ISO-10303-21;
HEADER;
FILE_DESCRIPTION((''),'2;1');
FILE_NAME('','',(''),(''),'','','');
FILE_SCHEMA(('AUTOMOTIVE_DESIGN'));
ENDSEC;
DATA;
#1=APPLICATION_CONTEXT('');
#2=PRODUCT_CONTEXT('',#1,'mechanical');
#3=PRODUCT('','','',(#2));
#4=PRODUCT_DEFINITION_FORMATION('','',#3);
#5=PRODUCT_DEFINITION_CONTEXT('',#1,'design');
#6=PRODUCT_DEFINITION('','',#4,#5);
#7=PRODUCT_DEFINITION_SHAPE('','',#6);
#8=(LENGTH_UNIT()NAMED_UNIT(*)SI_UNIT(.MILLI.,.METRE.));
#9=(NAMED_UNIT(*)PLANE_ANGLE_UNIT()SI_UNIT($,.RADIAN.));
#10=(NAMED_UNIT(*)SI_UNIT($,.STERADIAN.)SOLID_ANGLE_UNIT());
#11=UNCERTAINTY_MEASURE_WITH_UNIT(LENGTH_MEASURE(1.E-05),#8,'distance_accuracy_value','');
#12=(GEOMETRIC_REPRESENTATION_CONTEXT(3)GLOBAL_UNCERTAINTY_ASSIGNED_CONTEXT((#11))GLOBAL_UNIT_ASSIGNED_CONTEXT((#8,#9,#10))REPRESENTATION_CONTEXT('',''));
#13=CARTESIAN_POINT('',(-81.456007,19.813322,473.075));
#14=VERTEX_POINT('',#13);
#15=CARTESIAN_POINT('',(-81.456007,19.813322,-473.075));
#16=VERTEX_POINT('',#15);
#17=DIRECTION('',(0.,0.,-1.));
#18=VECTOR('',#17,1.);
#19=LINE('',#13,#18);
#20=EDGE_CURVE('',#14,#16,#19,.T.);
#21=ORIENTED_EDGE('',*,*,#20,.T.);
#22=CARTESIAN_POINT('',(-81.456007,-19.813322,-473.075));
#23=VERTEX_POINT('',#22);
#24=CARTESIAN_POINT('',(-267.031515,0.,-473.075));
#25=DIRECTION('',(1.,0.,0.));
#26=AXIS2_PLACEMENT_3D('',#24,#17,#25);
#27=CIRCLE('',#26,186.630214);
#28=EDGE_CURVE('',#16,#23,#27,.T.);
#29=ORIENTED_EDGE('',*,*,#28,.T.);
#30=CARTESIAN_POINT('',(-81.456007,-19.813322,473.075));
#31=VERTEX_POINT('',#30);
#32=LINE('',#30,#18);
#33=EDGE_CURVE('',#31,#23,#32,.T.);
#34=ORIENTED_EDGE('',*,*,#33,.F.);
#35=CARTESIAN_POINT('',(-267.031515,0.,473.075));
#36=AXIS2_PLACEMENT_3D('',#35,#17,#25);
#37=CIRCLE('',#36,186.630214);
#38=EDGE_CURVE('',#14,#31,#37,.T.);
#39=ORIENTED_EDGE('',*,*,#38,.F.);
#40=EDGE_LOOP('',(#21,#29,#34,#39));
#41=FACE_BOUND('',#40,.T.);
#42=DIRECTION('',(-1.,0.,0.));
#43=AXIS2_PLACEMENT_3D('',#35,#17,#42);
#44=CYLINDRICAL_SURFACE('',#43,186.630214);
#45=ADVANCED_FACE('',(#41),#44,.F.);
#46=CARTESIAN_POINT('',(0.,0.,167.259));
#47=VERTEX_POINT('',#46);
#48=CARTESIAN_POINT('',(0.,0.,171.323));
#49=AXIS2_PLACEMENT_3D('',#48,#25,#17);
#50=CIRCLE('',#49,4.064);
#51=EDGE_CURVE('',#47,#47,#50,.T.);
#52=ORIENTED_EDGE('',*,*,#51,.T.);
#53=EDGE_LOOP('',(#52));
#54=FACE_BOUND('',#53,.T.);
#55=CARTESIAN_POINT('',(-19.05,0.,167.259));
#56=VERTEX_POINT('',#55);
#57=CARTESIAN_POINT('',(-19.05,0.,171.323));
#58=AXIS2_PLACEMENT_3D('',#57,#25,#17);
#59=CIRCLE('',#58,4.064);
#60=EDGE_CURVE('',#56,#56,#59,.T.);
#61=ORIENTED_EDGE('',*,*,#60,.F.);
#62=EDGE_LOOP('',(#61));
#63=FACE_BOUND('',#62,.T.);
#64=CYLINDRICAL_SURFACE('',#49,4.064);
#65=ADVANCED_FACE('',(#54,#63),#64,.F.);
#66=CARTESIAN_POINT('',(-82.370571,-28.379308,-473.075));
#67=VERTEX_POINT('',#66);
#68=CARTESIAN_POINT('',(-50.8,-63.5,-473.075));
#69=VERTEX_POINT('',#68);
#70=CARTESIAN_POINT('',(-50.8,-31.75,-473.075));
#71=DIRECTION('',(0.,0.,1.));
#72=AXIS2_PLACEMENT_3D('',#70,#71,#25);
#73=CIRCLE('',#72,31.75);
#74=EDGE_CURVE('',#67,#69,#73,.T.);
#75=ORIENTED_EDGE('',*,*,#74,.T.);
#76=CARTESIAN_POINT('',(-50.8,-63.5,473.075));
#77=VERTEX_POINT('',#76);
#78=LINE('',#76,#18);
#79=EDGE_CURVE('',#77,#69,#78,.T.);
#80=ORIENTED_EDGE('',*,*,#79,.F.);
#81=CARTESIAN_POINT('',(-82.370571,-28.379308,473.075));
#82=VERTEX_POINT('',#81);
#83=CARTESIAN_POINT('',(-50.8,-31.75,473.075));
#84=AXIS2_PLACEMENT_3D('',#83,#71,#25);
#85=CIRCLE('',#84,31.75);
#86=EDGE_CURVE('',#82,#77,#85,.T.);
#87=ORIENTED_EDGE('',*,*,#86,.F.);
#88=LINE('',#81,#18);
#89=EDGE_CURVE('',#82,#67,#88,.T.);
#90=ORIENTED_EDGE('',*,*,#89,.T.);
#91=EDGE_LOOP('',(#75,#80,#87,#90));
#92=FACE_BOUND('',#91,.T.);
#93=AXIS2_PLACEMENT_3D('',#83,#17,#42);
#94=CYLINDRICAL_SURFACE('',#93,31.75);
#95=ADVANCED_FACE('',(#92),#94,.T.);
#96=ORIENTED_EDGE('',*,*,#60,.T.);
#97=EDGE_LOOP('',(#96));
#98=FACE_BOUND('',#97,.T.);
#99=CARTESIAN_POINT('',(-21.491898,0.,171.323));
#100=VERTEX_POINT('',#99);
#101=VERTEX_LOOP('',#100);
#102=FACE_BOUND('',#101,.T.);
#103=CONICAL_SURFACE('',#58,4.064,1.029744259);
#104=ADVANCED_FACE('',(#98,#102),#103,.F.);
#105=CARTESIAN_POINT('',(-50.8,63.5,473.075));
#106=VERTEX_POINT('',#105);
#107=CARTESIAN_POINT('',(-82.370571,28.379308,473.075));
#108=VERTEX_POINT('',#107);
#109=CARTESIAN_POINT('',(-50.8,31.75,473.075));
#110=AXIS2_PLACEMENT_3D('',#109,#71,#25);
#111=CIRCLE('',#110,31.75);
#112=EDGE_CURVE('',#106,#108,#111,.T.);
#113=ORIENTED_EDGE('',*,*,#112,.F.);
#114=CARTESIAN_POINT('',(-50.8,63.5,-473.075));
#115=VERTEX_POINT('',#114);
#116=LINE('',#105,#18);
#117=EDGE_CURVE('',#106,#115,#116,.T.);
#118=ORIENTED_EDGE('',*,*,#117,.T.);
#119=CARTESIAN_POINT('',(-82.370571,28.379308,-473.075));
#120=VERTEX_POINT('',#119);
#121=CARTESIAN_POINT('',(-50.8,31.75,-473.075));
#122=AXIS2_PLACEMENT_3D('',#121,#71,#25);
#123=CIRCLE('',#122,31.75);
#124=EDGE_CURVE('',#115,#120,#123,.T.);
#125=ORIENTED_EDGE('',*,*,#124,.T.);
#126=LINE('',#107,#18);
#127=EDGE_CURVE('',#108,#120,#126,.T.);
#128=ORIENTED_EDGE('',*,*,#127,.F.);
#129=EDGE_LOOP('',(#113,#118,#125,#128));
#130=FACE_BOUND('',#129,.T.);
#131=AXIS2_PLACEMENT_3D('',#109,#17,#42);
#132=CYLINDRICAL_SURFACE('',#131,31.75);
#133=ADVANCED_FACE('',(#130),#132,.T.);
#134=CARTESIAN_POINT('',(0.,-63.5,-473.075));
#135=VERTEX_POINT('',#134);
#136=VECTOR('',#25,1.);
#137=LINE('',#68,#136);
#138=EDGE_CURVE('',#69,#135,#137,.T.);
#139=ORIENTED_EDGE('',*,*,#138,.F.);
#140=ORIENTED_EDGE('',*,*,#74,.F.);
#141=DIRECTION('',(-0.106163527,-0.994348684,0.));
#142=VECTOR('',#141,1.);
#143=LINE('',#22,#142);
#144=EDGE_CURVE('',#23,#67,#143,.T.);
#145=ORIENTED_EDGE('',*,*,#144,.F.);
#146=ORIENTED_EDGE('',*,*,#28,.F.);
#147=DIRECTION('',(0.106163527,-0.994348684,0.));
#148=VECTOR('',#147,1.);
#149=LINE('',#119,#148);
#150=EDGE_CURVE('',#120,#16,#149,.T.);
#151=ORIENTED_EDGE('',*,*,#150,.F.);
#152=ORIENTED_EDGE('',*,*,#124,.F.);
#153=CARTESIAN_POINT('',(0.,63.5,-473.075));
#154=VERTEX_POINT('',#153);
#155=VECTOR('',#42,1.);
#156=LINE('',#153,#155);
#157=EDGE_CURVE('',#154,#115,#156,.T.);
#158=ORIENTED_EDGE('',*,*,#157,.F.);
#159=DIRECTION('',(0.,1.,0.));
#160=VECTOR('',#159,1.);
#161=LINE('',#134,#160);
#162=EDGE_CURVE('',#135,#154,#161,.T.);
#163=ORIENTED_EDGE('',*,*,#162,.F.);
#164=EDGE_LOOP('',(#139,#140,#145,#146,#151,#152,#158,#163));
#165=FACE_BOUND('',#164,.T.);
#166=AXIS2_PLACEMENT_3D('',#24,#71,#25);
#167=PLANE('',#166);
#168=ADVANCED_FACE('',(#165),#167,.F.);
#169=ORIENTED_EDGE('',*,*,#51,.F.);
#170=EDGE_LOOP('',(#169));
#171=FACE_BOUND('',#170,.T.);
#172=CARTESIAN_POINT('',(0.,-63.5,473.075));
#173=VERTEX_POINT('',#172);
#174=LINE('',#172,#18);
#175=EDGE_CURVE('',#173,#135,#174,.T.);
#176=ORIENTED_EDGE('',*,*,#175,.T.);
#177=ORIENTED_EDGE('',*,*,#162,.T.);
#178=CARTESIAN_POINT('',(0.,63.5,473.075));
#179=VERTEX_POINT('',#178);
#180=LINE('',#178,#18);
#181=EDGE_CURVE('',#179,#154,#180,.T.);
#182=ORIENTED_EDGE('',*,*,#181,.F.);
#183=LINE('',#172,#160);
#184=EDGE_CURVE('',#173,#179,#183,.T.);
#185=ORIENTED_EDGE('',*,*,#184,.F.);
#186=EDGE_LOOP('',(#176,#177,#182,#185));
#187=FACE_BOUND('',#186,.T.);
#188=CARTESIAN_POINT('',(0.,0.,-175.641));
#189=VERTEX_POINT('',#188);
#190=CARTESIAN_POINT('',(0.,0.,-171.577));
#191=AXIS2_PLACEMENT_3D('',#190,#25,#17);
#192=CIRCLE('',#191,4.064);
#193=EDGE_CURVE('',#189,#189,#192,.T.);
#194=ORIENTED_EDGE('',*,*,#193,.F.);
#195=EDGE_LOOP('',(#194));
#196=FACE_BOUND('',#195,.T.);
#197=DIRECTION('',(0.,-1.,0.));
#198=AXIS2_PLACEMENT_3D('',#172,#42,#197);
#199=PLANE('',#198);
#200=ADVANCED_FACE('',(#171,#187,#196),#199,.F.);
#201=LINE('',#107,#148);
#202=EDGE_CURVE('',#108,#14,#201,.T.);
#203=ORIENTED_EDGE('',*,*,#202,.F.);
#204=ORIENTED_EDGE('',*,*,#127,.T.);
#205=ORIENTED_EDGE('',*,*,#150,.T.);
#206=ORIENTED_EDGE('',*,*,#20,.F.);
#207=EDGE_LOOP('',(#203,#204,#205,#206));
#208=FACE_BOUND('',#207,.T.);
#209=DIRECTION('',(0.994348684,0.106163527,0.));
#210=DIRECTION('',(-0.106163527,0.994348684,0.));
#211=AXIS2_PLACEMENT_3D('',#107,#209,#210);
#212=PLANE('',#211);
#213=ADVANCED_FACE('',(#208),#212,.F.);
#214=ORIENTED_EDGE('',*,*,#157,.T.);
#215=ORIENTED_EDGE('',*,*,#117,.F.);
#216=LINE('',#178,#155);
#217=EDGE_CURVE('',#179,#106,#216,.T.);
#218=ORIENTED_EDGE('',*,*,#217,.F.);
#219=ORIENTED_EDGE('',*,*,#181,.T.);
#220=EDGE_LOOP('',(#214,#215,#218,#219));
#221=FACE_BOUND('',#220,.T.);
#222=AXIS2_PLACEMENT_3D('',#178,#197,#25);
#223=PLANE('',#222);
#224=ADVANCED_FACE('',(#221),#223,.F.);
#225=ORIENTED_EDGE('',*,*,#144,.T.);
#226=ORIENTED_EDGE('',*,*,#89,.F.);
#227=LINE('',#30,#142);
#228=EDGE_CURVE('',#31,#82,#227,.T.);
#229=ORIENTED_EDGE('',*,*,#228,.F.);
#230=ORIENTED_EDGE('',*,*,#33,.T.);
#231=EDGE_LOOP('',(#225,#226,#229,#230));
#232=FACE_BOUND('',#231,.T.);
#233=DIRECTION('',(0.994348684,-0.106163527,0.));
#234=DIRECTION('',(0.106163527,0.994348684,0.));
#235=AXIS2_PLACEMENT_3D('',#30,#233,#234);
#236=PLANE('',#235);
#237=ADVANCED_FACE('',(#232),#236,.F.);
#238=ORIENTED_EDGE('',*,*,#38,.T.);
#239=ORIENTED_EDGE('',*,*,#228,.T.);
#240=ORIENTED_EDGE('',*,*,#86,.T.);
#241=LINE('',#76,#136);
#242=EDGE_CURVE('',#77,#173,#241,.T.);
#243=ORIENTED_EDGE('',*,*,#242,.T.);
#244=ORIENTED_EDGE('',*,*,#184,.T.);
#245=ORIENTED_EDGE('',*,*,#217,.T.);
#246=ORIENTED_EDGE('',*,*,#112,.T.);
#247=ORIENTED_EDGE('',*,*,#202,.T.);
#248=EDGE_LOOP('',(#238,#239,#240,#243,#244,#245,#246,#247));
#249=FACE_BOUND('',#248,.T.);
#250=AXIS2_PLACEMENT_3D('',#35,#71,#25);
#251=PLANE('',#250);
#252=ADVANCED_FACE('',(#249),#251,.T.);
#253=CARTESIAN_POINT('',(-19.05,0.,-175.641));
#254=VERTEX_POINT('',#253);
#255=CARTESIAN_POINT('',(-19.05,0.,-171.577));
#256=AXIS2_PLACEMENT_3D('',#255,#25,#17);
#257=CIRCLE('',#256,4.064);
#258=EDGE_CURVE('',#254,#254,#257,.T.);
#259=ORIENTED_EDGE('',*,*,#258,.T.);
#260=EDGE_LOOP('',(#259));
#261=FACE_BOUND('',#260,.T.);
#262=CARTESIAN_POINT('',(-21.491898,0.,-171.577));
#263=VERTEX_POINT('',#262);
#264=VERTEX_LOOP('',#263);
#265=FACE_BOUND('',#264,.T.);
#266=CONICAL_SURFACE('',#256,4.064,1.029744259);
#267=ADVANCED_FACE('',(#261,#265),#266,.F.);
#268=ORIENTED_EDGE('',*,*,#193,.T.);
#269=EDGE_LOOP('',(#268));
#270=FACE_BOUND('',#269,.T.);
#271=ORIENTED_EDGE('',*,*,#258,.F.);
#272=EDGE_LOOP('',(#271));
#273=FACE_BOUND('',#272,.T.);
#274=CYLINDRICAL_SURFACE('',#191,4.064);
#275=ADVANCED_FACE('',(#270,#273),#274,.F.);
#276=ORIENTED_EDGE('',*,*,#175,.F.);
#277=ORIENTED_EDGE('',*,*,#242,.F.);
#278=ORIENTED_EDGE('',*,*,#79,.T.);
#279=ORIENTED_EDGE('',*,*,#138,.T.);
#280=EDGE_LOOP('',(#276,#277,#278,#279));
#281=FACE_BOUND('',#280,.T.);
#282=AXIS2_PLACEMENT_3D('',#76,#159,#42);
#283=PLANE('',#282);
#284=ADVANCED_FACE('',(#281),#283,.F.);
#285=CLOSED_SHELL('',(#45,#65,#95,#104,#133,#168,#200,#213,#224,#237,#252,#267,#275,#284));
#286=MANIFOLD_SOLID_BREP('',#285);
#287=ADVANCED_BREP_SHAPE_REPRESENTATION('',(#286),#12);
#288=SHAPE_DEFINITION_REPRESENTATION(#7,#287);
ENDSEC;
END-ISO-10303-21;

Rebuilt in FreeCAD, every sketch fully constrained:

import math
import FreeCAD as App
import Part
import Sketcher
Q = App.Units.Quantity

doc = App.newDocument("Part")
body = doc.addObject("PartDesign::Body", "Body")

# Sketch on XY plane
sketch1 = body.newObject("Sketcher::SketchObject", "Sketch")
sketch1.AttachmentSupport = (doc.getObject("XY_Plane"), [""])
sketch1.MapMode = "FlatFace"
sketch1.addGeometry([
    Part.LineSegment(App.Vector(-81, -20, 0), App.Vector(-82, -28, 0)),  # 0
    Part.ArcOfCircle(Part.Circle(App.Vector(-51, -32, 0), App.Vector(0, 0, 1), 32), math.radians(174), math.radians(270)),  # 1
    Part.LineSegment(App.Vector(-51, -64, 0), App.Vector(0, -64, 0)),  # 2
    Part.LineSegment(App.Vector(0, -64, 0), App.Vector(0, 64, 0)),  # 3
    Part.LineSegment(App.Vector(0, 64, 0), App.Vector(-51, 64, 0)),  # 4
    Part.ArcOfCircle(Part.Circle(App.Vector(-51, 32, 0), App.Vector(0, 0, 1), 32), math.radians(90), math.radians(186)),  # 5
    Part.LineSegment(App.Vector(-82, 28, 0), App.Vector(-81, 20, 0)),  # 6
    Part.ArcOfCircle(Part.Circle(App.Vector(-267, 0, 0), App.Vector(0, 0, 1), 187), math.radians(-6.09), math.radians(6.09)),  # 7
], False)
sketch1.addConstraint([
    Sketcher.Constraint("Tangent", 0, 2, 1, 1),
    Sketcher.Constraint("Tangent", 1, 2, 2, 1),
    Sketcher.Constraint("Coincident", 2, 2, 3, 1),
    Sketcher.Constraint("Coincident", 3, 2, 4, 1),
    Sketcher.Constraint("Tangent", 4, 2, 5, 1),
    Sketcher.Constraint("Tangent", 5, 2, 6, 1),
    Sketcher.Constraint("Tangent", 6, 2, 7, 2),
    Sketcher.Constraint("Tangent", 7, 1, 0, 1),
    Sketcher.Constraint("Horizontal", 2),
    Sketcher.Constraint("Vertical", 3),
    Sketcher.Constraint("Horizontal", 4),
    Sketcher.Constraint("Equal", 1, 5),
    Sketcher.Constraint("Symmetric", 2, 2, 3, 2, -1, 1),
    Sketcher.Constraint("Symmetric", 0, 2, 5, 2, -1),
    Sketcher.Constraint("DistanceX", 2, 1, 2, 2, Q("2 in")),
    Sketcher.Constraint("DistanceY", 3, 1, 3, 2, Q("5 in")),
    Sketcher.Constraint("Radius", 1, Q("1.25 in")),
    Sketcher.Constraint("Radius", 7, 186.630214),
    Sketcher.Constraint("Distance", 0, 8.61467),
])
pad1 = body.newObject("PartDesign::Pad", "Pad")
pad1.Profile = sketch1
pad1.Length = Q("37.25 in")
pad1.Midplane = True

# Sketch on YZ plane
sketch2 = body.newObject("Sketcher::SketchObject", "Sketch001")
sketch2.AttachmentSupport = (doc.getObject("YZ_Plane"), [""])
sketch2.MapMode = "FlatFace"
sketch2.addGeometry([
    Part.Circle(App.Vector(0, 171.3, 0), App.Vector(0, 0, 1), 4.1),
    Part.Circle(App.Vector(0, -171.6, 0), App.Vector(0, 0, 1), 4.1),
], False)
sketch2.addConstraint([
    Sketcher.Constraint("Equal", 0, 1),
    Sketcher.Constraint("PointOnObject", 0, 3, -2),
    Sketcher.Constraint("PointOnObject", 1, 3, -2),
    Sketcher.Constraint("Diameter", 0, Q("0.32 in")),
    Sketcher.Constraint("DistanceY", 1, 3, 0, 3, Q("13.5 in")),
    Sketcher.Constraint("DistanceY", -1, 1, 0, 3, Q("6.745 in")),
])
doc.recompute()
hole = body.newObject("PartDesign::Hole", "Hole")
hole.Profile = sketch2
hole.ThreadType = "None"
hole.Diameter = Q("0.32 in")
hole.DepthType = "Dimension"
hole.Depth = Q("0.75 in")
hole.DrillPoint = "Angled"
hole.DrillPointAngle = 118

doc.recompute()
